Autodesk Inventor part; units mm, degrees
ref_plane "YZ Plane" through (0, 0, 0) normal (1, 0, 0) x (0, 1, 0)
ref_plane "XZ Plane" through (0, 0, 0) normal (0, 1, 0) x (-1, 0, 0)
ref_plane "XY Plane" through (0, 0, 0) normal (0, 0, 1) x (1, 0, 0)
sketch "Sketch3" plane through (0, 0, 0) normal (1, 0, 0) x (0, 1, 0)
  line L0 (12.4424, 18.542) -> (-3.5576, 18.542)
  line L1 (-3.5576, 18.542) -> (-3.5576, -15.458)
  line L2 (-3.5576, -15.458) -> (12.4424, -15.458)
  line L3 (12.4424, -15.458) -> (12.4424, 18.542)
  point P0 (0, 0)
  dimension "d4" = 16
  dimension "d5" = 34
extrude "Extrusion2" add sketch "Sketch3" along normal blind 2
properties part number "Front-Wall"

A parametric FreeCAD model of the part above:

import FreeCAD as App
import Part
import Sketcher

V = App.Vector
Q = App.Units.Quantity

doc = App.newDocument("Part")
body = doc.addObject("PartDesign::Body", "Body")

sketch1 = body.newObject("Sketcher::SketchObject", "Sketch")
sketch1.AttachmentSupport = (doc.getObject("YZ_Plane"), [""])
sketch1.MapMode = "FlatFace"
sketch1.addGeometry([
    Part.LineSegment(V(12, -15, 0), V(12, 19, 0)),
    Part.LineSegment(V(12, 19, 0), V(-4, 19, 0)),
    Part.LineSegment(V(-4, 19, 0), V(-4, -15, 0)),
    Part.LineSegment(V(-4, -15, 0), V(12, -15, 0)),
], False)
sketch1.addConstraint([
    Sketcher.Constraint("Coincident", 0, 2, 1, 1),
    Sketcher.Constraint("Coincident", 1, 2, 2, 1),
    Sketcher.Constraint("Coincident", 2, 2, 3, 1),
    Sketcher.Constraint("Coincident", 3, 2, 0, 1),
    Sketcher.Constraint("Vertical", 0),
    Sketcher.Constraint("Horizontal", 1),
    Sketcher.Constraint("Vertical", 2),
    Sketcher.Constraint("Horizontal", 3),
    Sketcher.Constraint("DistanceX", 1, 2, 1, 1, Q("16 mm")),
    Sketcher.Constraint("DistanceY", 0, 1, 0, 2, Q("34 mm")),
    Sketcher.Constraint("DistanceY", -1, 1, 0, 2, Q("18.542 mm")),
    Sketcher.Constraint("DistanceX", -1, 1, 0, 2, Q("12.4424 mm")),
])
pad1 = body.newObject("PartDesign::Pad", "Pad")
pad1.Profile = sketch1
pad1.Length = 2

doc.recompute()
